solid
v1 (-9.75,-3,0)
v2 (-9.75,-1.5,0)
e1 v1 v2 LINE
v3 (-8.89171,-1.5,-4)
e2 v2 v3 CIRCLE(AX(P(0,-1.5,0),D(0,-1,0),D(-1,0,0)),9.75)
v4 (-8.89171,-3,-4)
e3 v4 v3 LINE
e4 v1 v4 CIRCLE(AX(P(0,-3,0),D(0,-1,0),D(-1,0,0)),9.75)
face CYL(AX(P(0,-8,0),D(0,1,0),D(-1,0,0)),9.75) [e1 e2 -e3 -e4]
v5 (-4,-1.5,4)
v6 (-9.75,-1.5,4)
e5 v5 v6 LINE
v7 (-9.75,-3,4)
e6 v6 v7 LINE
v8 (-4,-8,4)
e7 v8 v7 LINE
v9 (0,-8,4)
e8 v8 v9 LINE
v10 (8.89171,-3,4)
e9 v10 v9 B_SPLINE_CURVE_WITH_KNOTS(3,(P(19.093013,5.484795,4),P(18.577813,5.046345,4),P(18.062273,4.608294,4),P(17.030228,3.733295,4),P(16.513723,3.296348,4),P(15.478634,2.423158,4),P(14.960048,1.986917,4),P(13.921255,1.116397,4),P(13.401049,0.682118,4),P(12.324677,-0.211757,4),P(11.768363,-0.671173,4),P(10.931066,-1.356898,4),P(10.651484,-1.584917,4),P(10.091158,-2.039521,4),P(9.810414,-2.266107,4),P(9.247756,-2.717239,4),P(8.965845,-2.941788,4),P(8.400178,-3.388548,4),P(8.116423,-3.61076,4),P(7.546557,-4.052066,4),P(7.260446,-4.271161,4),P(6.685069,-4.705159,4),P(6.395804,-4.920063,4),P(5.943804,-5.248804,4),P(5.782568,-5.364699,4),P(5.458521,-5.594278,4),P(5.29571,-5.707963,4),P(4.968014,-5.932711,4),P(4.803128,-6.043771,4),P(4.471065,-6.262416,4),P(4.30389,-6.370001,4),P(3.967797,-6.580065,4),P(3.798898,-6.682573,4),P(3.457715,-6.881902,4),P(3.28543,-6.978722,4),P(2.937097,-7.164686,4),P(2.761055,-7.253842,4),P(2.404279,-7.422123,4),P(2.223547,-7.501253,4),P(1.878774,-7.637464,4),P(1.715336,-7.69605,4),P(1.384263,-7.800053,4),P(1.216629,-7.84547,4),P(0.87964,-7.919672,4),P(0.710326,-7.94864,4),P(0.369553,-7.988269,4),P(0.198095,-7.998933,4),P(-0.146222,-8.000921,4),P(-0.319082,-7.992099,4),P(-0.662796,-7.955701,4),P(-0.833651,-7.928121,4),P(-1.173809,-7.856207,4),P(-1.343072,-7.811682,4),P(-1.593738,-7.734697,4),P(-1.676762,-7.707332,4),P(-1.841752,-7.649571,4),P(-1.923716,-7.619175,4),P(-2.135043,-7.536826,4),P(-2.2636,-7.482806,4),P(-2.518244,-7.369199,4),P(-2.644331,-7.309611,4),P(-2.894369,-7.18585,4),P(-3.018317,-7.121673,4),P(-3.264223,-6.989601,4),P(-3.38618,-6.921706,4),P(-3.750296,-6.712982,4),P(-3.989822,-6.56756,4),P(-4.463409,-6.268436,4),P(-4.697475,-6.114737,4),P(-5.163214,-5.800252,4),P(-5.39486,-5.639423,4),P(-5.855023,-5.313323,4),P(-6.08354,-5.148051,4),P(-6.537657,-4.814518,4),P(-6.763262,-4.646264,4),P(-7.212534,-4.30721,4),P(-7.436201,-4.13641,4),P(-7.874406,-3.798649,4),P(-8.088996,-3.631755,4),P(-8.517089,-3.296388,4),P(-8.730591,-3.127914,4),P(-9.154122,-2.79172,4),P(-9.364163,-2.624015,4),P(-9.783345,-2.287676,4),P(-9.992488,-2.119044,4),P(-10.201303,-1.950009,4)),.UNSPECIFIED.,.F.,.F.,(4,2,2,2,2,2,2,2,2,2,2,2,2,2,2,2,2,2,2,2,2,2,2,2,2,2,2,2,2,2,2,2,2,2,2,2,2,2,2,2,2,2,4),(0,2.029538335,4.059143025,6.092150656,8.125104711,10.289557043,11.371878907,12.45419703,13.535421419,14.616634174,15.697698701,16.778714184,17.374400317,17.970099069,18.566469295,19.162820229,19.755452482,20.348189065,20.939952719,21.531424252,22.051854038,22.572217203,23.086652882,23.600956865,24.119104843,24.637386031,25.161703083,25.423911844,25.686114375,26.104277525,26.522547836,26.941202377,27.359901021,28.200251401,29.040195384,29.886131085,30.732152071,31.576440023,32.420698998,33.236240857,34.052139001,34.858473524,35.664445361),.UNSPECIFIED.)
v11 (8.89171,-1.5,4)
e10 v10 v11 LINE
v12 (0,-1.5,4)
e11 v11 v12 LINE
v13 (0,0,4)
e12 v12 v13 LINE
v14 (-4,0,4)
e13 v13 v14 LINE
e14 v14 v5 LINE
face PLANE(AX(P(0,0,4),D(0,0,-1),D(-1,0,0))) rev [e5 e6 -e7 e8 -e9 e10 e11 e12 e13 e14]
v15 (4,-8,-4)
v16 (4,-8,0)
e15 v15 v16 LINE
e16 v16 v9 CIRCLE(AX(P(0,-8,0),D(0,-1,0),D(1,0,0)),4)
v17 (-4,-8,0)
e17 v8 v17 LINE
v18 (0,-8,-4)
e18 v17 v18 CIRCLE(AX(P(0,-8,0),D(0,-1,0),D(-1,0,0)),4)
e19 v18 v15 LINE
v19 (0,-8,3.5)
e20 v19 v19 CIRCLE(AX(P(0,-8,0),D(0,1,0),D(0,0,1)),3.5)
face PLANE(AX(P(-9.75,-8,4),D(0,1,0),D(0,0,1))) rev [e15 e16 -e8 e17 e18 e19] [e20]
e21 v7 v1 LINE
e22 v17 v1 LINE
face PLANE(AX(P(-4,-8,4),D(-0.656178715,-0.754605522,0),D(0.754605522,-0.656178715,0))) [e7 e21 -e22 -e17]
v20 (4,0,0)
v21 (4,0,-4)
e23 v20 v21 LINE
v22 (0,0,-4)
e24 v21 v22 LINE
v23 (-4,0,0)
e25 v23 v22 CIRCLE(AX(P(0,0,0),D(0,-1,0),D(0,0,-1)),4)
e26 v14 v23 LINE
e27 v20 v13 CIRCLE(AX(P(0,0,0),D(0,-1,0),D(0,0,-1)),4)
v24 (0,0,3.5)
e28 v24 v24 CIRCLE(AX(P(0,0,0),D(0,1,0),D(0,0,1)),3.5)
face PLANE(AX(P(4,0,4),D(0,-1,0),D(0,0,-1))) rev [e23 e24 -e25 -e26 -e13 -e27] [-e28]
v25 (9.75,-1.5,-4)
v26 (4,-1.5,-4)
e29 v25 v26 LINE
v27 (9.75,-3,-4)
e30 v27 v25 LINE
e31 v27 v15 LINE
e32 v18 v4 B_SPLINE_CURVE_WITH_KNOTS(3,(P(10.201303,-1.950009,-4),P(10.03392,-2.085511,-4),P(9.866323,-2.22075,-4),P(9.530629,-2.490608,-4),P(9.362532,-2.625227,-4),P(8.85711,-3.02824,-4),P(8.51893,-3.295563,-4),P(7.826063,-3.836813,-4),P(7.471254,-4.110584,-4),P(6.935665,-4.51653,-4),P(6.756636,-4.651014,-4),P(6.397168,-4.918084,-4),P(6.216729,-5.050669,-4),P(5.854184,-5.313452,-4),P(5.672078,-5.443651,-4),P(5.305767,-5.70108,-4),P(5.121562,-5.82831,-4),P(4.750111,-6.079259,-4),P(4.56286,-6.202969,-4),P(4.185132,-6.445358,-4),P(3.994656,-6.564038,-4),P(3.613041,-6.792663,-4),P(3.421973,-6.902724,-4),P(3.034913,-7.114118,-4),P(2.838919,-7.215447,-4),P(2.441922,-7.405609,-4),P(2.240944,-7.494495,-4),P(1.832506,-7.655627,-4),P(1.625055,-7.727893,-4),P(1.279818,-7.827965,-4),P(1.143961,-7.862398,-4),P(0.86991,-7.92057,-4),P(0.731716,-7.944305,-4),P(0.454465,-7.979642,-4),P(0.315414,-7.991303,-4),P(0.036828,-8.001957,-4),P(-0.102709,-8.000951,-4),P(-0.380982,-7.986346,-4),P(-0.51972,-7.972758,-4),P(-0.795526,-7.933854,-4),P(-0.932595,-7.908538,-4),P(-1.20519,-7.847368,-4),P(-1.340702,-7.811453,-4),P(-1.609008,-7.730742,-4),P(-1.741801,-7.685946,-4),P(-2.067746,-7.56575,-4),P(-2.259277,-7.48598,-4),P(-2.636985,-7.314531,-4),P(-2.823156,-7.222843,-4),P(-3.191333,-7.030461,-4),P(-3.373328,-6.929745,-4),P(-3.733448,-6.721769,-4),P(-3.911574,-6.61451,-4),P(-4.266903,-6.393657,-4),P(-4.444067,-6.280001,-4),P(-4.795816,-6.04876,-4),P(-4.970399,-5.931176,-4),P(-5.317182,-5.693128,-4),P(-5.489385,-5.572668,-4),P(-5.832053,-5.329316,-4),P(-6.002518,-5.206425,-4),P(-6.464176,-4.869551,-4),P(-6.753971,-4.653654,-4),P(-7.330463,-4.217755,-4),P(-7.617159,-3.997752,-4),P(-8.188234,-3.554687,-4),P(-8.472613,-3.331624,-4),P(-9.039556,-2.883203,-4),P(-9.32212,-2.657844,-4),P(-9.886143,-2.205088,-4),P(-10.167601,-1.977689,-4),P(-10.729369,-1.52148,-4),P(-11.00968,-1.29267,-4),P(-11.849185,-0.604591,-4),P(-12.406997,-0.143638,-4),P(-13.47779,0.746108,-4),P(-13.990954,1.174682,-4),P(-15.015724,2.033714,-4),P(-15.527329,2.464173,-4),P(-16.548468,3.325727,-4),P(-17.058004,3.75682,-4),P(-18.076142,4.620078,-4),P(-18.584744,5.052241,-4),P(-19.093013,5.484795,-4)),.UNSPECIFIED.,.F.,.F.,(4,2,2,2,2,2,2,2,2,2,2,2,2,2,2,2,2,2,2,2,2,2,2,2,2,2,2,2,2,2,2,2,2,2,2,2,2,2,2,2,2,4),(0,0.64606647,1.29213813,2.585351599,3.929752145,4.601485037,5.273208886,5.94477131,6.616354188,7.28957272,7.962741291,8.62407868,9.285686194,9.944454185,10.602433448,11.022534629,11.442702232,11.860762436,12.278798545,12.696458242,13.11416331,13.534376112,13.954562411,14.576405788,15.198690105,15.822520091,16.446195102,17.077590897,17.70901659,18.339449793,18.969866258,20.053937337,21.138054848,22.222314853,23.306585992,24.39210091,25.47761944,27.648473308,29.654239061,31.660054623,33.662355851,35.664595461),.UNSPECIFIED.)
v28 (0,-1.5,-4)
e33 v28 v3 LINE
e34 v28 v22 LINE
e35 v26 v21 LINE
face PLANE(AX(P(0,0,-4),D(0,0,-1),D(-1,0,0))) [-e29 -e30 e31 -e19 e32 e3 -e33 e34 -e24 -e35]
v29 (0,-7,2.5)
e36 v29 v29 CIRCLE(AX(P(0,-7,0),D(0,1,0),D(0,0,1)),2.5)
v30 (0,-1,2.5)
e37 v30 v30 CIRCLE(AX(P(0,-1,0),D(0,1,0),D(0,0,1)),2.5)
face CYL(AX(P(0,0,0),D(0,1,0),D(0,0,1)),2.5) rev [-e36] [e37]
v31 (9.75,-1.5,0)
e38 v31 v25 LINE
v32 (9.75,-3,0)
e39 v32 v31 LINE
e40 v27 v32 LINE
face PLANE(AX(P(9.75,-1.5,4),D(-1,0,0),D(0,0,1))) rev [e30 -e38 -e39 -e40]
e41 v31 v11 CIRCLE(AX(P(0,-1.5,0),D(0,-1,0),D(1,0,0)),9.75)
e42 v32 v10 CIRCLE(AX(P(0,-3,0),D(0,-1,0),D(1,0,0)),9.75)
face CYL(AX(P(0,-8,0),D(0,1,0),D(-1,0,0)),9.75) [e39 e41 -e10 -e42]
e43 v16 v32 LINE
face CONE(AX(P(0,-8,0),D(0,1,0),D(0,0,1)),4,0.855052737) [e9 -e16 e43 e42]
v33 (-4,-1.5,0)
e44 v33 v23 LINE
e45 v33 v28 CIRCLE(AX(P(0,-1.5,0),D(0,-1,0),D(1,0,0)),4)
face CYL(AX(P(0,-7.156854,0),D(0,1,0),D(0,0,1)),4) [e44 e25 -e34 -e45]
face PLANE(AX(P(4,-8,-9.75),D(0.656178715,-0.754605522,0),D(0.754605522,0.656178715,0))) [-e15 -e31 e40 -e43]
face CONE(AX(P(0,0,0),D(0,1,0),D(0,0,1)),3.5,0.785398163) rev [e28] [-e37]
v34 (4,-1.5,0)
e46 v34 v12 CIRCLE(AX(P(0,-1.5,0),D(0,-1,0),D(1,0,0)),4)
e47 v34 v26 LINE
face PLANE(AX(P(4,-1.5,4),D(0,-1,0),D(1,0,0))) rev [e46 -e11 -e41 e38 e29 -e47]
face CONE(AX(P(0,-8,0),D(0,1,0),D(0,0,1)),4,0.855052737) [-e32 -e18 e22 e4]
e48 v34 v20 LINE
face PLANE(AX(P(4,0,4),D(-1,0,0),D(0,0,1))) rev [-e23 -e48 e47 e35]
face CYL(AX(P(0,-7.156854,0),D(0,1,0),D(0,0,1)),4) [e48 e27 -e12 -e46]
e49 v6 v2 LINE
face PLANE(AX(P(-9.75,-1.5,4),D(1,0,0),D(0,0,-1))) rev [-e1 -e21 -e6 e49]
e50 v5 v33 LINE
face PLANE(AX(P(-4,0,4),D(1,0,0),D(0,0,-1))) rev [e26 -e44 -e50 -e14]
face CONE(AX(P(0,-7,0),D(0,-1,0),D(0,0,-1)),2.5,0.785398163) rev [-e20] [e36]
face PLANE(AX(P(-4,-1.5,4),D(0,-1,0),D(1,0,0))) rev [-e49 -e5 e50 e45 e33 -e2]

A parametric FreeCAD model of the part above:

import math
import FreeCAD as App
import Part
import Sketcher
from FreeCAD import Vector
Q = App.Units.Quantity


def add_polygon(sketch, points):
    """Adds a closed chain of lines whose ends are joined by coincident constraints."""
    first, n = sketch.GeometryCount, len(points)
    for a, b in zip(points, points[1:] + points[:1]):
        sketch.addGeometry(Part.LineSegment(App.Vector(*a, 0), App.Vector(*b, 0)), False)
    for i in range(n):
        sketch.addConstraint(Sketcher.Constraint("Coincident", first + i, 2, first + (i + 1) % n, 1))

doc = App.newDocument("Part")
params = doc.addObject("Spreadsheet::Sheet", "Params")
for row, (alias, value) in enumerate([
    ("sketch1_width", "8 mm"),
    ("sketch1_width2", "19.5 mm"),
    ("sketch1_height", "1.5 mm"),
    ("sketch1_height2", "6.5 mm"),
    ("pad1_length", "8 mm"),
    ("sketch2_width", "8 mm"),
    ("sketch2_width2", "6 mm"),
    ("sketch2_height", "3.5 mm"),
    ("groove_angle", "360 deg"),
    ("sketch3_radius", "4 mm"),
    ("pocket1_length", "1.5 mm"),
    ("sketch4_height", "4 mm"),
    ("sketch4_radius", "9.75 mm"),
    ("sketch5_height", "5 mm"),
    ("sketch5_width", "5.75 mm"),
    ("sketch6_radius", "9.75 mm"),
], start=1):
    params.set(f"A{row}", alias)
    params.set(f"B{row}", "=" + value)
    params.setAlias(f"B{row}", alias)

body = doc.addObject("PartDesign::Body", "Body")

# Sketch on XY plane
sketch1 = doc.addObject("Sketcher::SketchObject", "Sketch")
body.addObject(sketch1)
sketch1.AttachmentSupport = (doc.XY_Plane, [""])
sketch1.MapMode = "FlatFace"
add_polygon(sketch1, [(4, 0), (-4, 0), (-4, -1.5), (-9.8, -1.5), (-9.8, -8), (9.8, -8), (9.8, -1.5), (4, -1.5)])  # lines 0-7
sketch1.addConstraint([
    Sketcher.Constraint("Horizontal", 0),
    Sketcher.Constraint("Vertical", 1),
    Sketcher.Constraint("Horizontal", 2),
    Sketcher.Constraint("Vertical", 3),
    Sketcher.Constraint("Horizontal", 4),
    Sketcher.Constraint("Vertical", 5),
    Sketcher.Constraint("Horizontal", 6),
    Sketcher.Constraint("Vertical", 7),
    Sketcher.Constraint("Symmetric", 0, 2, 7, 2, -1, 1),
    Sketcher.Constraint("Symmetric", 2, 2, 5, 2, -2),
    Sketcher.Constraint("DistanceX", 0, 2, 0, 1, Q("8 mm")),
    Sketcher.Constraint("DistanceX", 4, 1, 4, 2, Q("19.5 mm")),
    Sketcher.Constraint("DistanceY", 1, 2, 1, 1, Q("1.5 mm")),
    Sketcher.Constraint("DistanceY", 3, 2, 3, 1, Q("6.5 mm")),
])
sketch1.setExpression("Constraints[18]", "Params.sketch1_width")
sketch1.setExpression("Constraints[19]", "Params.sketch1_width2")
sketch1.setExpression("Constraints[20]", "Params.sketch1_height")
sketch1.setExpression("Constraints[21]", "Params.sketch1_height2")
pad1 = doc.addObject("PartDesign::Pad", "Pad")
body.addObject(pad1)
pad1.Profile = sketch1
pad1.setExpression("Length", "Params.pad1_length")
pad1.Midplane = True

# Sketch on YZ plane
sketch2 = doc.addObject("Sketcher::SketchObject", "Sketch001")
body.addObject(sketch2)
sketch2.AttachmentSupport = (doc.YZ_Plane, [""])
sketch2.MapMode = "FlatFace"
add_polygon(sketch2, [(-8, 0), (0, 0), (0, 3.5), (-1, 2.5), (-7, 2.5), (-8, 3.5)])  # lines 0-5
sketch2.addConstraint([
    Sketcher.Constraint("Horizontal", 0),
    Sketcher.Constraint("Vertical", 1),
    Sketcher.Constraint("Horizontal", 3),
    Sketcher.Constraint("Vertical", 5),
    Sketcher.Constraint("Coincident", 0, 2, -1, 1),
    Sketcher.Constraint("Perpendicular", 2, 4),
    Sketcher.Constraint("Horizontal", 1, 2, 4, 2),
    Sketcher.Constraint("Equal", 2, 4),
    Sketcher.Constraint("DistanceX", 0, 1, 0, 2, Q("8 mm")),
    Sketcher.Constraint("DistanceX", 3, 2, 3, 1, Q("6 mm")),
    Sketcher.Constraint("DistanceY", 1, 1, 1, 2, Q("3.5 mm")),
])
sketch2.setExpression("Constraints[14]", "Params.sketch2_width")
sketch2.setExpression("Constraints[15]", "Params.sketch2_width2")
sketch2.setExpression("Constraints[16]", "Params.sketch2_height")
groove = doc.addObject("PartDesign::Groove", "Groove")
body.addObject(groove)
groove.Profile = sketch2
groove.ReferenceAxis = (sketch2, ["H_Axis"])
groove.setExpression("Angle", "Params.groove_angle")

# Sketch on XZ plane
sketch3 = doc.addObject("Sketcher::SketchObject", "Sketch002")
body.addObject(sketch3)
sketch3.AttachmentSupport = (doc.XZ_Plane, [""])
sketch3.MapMode = "FlatFace"
sketch3.addGeometry([
    Part.LineSegment(Vector(-4, -4, 0), Vector(-4, 0, 0)),  # 0
    Part.ArcOfCircle(Part.Circle(Vector(0, 0, 0), Vector(0, 0, 1), 4), math.radians(180), math.radians(270)),  # 1
    Part.LineSegment(Vector(0, -4, 0), Vector(-4, -4, 0)),  # 2
    Part.LineSegment(Vector(0, 4, 0), Vector(4, 4, 0)),  # 3
    Part.LineSegment(Vector(4, 4, 0), Vector(4, 0, 0)),  # 4
    Part.ArcOfCircle(Part.Circle(Vector(0, 0, 0), Vector(0, 0, 1), 4), math.radians(0), math.radians(90)),  # 5
], False)
sketch3.addConstraint([
    Sketcher.Constraint("Tangent", 0, 2, 1, 1),
    Sketcher.Constraint("Tangent", 1, 2, 2, 1),
    Sketcher.Constraint("Coincident", 2, 2, 0, 1),
    Sketcher.Constraint("Coincident", 3, 2, 4, 1),
    Sketcher.Constraint("Tangent", 4, 2, 5, 1),
    Sketcher.Constraint("Tangent", 5, 2, 3, 1),
    Sketcher.Constraint("Vertical", 0),
    Sketcher.Constraint("Horizontal", 2),
    Sketcher.Constraint("Horizontal", 3),
    Sketcher.Constraint("Vertical", 4),
    Sketcher.Constraint("Coincident", 1, 3, -1, 1),
    Sketcher.Constraint("Coincident", 5, 3, -1, 1),
    Sketcher.Constraint("Equal", 1, 5),
    Sketcher.Constraint("Radius", 1, Q("4 mm")),
])
sketch3.setExpression("Constraints[13]", "Params.sketch3_radius")
pocket1 = doc.addObject("PartDesign::Pocket", "Pocket")
body.addObject(pocket1)
pocket1.Profile = sketch3
pocket1.setExpression("Length", "Params.pocket1_length")
pocket1.Reversed = True

# Sketch on XZ plane
sketch4 = doc.addObject("Sketcher::SketchObject", "Sketch003")
body.addObject(sketch4)
sketch4.AttachmentSupport = (doc.XZ_Plane, [""])
sketch4.MapMode = "FlatFace"
sketch4.AttachmentOffset = App.Placement(Vector(0, 0, 1.5), App.Rotation())
sketch4.addGeometry([
    Part.LineSegment(Vector(-9.8, -4, 0), Vector(-9.8, 0, 0)),  # 0
    Part.ArcOfCircle(Part.Circle(Vector(0, 0, 0), Vector(0, 0, 1), 9.8), math.radians(-180), math.radians(-156)),  # 1
    Part.LineSegment(Vector(-8.9, -4, 0), Vector(-9.8, -4, 0)),  # 2
    Part.LineSegment(Vector(9.8, 4, 0), Vector(9.8, 0, 0)),  # 3
    Part.ArcOfCircle(Part.Circle(Vector(0, 0, 0), Vector(0, 0, 1), 9.8), math.radians(0), math.radians(24)),  # 4
    Part.LineSegment(Vector(8.9, 4, 0), Vector(9.8, 4, 0)),  # 5
], False)
sketch4.addConstraint([
    Sketcher.Constraint("Tangent", 0, 2, 1, 1),
    Sketcher.Constraint("Coincident", 1, 2, 2, 1),
    Sketcher.Constraint("Coincident", 2, 2, 0, 1),
    Sketcher.Constraint("Tangent", 3, 2, 4, 1),
    Sketcher.Constraint("Coincident", 4, 2, 5, 1),
    Sketcher.Constraint("Coincident", 5, 2, 3, 1),
    Sketcher.Constraint("Vertical", 0),
    Sketcher.Constraint("Horizontal", 2),
    Sketcher.Constraint("Vertical", 3),
    Sketcher.Constraint("Horizontal", 5),
    Sketcher.Constraint("Coincident", 1, 3, -1, 1),
    Sketcher.Constraint("Coincident", 4, 3, -1, 1),
    Sketcher.Constraint("Equal", 1, 4),
    Sketcher.Constraint("Equal", 2, 5),
    Sketcher.Constraint("DistanceY", 0, 1, 0, 2, Q("4 mm")),
    Sketcher.Constraint("Radius", 1, Q("9.75 mm")),
])
sketch4.setExpression("Constraints[14]", "Params.sketch4_height")
sketch4.setExpression("Constraints[15]", "Params.sketch4_radius")
pocket2 = doc.addObject("PartDesign::Pocket", "Pocket001")
body.addObject(pocket2)
pocket2.Profile = sketch4
pocket2.Type = "ThroughAll"
pocket2.Reversed = True

# Sketch on XY plane
sketch5 = doc.addObject("Sketcher::SketchObject", "Sketch004")
body.addObject(sketch5)
sketch5.AttachmentSupport = (doc.XY_Plane, [""])
sketch5.MapMode = "FlatFace"
sketch5.AttachmentOffset = App.Placement(Vector(0, 0, 4), App.Rotation())
add_polygon(sketch5, [(-10, -3), (-10, -8), (-4, -8)])  # lines 0-2
sketch5.addConstraint([
    Sketcher.Constraint("Vertical", 0),
    Sketcher.Constraint("Horizontal", 1),
    Sketcher.Constraint("DistanceY", 0, 2, 0, 1, Q("5 mm")),
    Sketcher.Constraint("DistanceY", 0, 2, -1, 1, Q("8 mm")),
    Sketcher.Constraint("DistanceX", 1, 2, -1, 1, Q("4 mm")),
    Sketcher.Constraint("DistanceX", 1, 1, 1, 2, Q("5.75 mm")),
])
sketch5.setExpression("Constraints[5]", "Params.sketch5_height")
sketch5.setExpression("Constraints[8]", "Params.sketch5_width")

# Sketch on XZ plane
sketch6 = doc.addObject("Sketcher::SketchObject", "Sketch005")
body.addObject(sketch6)
sketch6.AttachmentSupport = (doc.XZ_Plane, [""])
sketch6.MapMode = "FlatFace"
sketch6.AttachmentOffset = App.Placement(Vector(0, 0, 8), App.Rotation())
sketch6.addGeometry([
    Part.LineSegment(Vector(0, 10, 0), Vector(-10, 10, 0)),  # 0
    Part.LineSegment(Vector(-10, 10, 0), Vector(-10, 0, 0)),  # 1
    Part.ArcOfCircle(Part.Circle(Vector(0, 0, 0), Vector(0, 0, 1), 10), math.radians(180), math.radians(270)),  # 2
    Part.LineSegment(Vector(0, -10, 0), Vector(10, -10, 0)),  # 3
    Part.LineSegment(Vector(10, -10, 0), Vector(10, 0, 0)),  # 4
    Part.ArcOfCircle(Part.Circle(Vector(0, 0, 0), Vector(0, 0, 1), 10), math.radians(0), math.radians(90)),  # 5
], False)
sketch6.addConstraint([
    Sketcher.Constraint("Coincident", 0, 2, 1, 1),
    Sketcher.Constraint("Tangent", 1, 2, 2, 1),
    Sketcher.Constraint("Tangent", 2, 2, 3, 1),
    Sketcher.Constraint("Coincident", 3, 2, 4, 1),
    Sketcher.Constraint("Tangent", 4, 2, 5, 1),
    Sketcher.Constraint("Tangent", 5, 2, 0, 1),
    Sketcher.Constraint("Horizontal", 0),
    Sketcher.Constraint("Vertical", 1),
    Sketcher.Constraint("Horizontal", 3),
    Sketcher.Constraint("Vertical", 4),
    Sketcher.Constraint("Coincident", 2, 3, -1, 1),
    Sketcher.Constraint("Coincident", 5, 3, -1, 1),
    Sketcher.Constraint("Equal", 2, 5),
    Sketcher.Constraint("Radius", 2, Q("9.75 mm")),
])
sketch6.setExpression("Constraints[13]", "Params.sketch6_radius")
doc.recompute()

subtractivepipe = doc.addObject("PartDesign::SubtractivePipe", "SubtractivePipe")
body.addObject(subtractivepipe)
subtractivepipe.Profile = sketch5
subtractivepipe.Spine = (sketch6, ["Edge1", "Edge2", "Edge3", "Edge4", "Edge5", "Edge6"])
subtractivepipe.Transition = "Right corner"

doc.recompute()
